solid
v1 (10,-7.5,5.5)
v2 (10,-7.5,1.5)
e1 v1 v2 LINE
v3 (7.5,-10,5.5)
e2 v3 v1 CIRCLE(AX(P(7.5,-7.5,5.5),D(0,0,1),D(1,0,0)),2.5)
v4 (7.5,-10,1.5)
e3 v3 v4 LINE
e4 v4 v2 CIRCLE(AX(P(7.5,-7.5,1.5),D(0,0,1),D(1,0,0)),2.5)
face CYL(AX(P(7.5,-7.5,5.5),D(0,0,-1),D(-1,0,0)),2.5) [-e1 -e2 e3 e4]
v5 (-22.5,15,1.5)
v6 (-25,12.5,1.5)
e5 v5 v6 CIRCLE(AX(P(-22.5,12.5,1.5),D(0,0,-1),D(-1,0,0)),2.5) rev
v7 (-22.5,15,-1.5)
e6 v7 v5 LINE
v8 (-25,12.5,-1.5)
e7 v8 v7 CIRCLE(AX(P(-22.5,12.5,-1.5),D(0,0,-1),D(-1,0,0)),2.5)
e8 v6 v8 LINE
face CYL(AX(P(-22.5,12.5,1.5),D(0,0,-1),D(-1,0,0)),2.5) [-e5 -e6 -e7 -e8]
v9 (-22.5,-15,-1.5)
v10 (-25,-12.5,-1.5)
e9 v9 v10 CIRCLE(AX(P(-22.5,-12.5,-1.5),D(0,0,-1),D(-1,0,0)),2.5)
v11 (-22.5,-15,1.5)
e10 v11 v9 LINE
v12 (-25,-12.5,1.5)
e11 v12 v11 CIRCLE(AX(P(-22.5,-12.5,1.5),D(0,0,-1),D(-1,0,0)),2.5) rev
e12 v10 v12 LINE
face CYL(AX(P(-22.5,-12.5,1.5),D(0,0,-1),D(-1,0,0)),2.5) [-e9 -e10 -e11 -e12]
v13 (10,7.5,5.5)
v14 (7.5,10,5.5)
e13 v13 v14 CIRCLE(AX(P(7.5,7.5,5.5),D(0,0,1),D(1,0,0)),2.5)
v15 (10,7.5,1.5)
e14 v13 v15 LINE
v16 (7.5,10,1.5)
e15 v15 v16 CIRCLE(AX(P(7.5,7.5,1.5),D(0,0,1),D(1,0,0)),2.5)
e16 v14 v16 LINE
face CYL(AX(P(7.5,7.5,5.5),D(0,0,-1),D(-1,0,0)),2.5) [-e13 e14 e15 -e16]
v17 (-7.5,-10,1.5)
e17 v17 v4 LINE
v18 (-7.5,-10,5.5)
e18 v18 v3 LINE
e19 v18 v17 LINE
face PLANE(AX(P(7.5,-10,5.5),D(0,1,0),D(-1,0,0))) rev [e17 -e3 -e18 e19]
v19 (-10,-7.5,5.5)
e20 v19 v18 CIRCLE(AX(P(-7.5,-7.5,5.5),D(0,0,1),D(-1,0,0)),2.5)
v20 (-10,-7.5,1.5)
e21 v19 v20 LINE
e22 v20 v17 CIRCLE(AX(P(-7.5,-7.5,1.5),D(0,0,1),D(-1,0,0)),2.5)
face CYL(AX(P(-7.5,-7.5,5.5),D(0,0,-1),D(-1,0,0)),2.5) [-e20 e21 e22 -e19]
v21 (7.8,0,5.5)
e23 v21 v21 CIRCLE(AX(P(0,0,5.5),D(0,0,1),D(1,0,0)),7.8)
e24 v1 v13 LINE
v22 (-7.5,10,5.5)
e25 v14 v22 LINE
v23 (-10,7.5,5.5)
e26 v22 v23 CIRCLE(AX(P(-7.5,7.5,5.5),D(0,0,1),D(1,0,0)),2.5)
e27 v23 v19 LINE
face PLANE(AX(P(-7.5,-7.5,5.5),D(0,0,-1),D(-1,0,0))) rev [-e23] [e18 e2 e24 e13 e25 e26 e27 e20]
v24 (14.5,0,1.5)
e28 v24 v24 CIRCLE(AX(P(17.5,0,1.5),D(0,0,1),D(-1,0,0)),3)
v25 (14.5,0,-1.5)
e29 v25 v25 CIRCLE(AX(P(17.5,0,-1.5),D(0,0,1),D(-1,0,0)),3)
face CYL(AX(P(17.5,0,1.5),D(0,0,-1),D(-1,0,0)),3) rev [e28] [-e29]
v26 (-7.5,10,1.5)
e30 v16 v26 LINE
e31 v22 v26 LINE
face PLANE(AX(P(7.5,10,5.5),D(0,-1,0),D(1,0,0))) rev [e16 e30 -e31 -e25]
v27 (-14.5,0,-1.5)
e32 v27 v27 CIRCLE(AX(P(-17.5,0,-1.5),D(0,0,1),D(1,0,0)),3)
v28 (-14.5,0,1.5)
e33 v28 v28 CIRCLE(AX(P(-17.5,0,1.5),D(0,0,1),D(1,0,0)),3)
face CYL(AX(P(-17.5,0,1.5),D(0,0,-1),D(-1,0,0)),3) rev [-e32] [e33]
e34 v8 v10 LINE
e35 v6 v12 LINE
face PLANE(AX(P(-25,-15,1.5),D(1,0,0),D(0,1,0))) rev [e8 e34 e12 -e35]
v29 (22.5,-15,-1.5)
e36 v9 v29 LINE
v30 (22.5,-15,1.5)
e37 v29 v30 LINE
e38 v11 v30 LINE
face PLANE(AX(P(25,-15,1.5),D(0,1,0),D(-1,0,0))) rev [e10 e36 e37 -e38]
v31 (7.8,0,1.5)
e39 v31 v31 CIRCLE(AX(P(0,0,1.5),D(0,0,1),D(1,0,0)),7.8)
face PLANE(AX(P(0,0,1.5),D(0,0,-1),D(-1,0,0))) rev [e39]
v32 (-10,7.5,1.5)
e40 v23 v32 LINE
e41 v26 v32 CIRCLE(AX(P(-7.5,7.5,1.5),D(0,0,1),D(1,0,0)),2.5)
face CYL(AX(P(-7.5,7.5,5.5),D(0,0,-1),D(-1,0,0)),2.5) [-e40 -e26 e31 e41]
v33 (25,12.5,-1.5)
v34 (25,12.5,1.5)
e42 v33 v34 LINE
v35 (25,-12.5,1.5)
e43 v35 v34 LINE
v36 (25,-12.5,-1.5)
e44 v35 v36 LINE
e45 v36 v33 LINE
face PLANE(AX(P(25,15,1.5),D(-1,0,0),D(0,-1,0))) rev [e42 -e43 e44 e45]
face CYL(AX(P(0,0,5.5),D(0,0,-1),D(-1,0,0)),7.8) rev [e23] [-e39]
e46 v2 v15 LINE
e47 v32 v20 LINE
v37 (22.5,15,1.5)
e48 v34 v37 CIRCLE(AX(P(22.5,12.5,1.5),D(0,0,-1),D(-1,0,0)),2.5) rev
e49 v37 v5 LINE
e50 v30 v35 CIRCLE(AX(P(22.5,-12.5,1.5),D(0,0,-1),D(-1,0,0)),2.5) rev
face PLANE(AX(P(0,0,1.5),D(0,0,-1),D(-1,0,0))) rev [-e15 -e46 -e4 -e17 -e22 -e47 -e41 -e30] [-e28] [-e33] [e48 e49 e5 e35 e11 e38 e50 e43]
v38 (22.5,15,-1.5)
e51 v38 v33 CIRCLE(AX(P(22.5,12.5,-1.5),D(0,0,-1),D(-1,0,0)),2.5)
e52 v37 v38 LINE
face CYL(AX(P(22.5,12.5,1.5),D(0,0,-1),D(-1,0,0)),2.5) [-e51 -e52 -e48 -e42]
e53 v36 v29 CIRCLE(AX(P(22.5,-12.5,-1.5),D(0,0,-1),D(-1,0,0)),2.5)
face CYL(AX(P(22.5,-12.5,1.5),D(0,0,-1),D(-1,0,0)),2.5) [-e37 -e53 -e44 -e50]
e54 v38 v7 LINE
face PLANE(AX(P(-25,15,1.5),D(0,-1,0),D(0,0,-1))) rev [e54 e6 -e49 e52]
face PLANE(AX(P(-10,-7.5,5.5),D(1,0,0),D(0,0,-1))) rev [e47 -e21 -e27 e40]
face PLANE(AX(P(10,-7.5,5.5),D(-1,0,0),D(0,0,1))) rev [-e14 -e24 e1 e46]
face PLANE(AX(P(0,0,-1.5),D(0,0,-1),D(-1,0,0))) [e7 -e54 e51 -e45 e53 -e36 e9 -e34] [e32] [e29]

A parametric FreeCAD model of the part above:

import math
import FreeCAD as App
import Part
import Sketcher


def edges_at(feature, points):
    """Names of the edges that pass closest to the given points."""
    edges = feature.Shape.Edges
    near = lambda p: min(range(len(edges)), key=lambda i: edges[i].distToShape(Part.Vertex(*p))[0])
    return sorted({f"Edge{near(p) + 1}" for p in points})

doc = App.newDocument("Part")
body = doc.addObject("PartDesign::Body", "Body")

# Sketch on XY plane
sketch1 = body.newObject("Sketcher::SketchObject", "Sketch")
sketch1.AttachmentSupport = (doc.getObject("XY_Plane"), [""])
sketch1.MapMode = "FlatFace"
sketch1.addGeometry(Part.LineSegment(App.Vector(-25, 15, 0), App.Vector(-25, -15, 0)), False)
sketch1.addGeometry(Part.LineSegment(App.Vector(-25, -15, 0), App.Vector(25, -15, 0)), False)
sketch1.addGeometry(Part.LineSegment(App.Vector(25, -15, 0), App.Vector(25, 15, 0)), False)
sketch1.addGeometry(Part.LineSegment(App.Vector(25, 15, 0), App.Vector(-25, 15, 0)), False)
sketch1.addGeometry(Part.Circle(App.Vector(-17.5, 0, 0), App.Vector(0, 0, 1), 3), False)
sketch1.addGeometry(Part.Circle(App.Vector(17.5, 0, 0), App.Vector(0, 0, 1), 3), False)
sketch1.addConstraint(Sketcher.Constraint("Coincident", 0, 2, 1, 1))
sketch1.addConstraint(Sketcher.Constraint("Coincident", 1, 2, 2, 1))
sketch1.addConstraint(Sketcher.Constraint("Coincident", 2, 2, 3, 1))
sketch1.addConstraint(Sketcher.Constraint("Coincident", 3, 2, 0, 1))
sketch1.addConstraint(Sketcher.Constraint("Vertical", 0))
sketch1.addConstraint(Sketcher.Constraint("Horizontal", 1))
sketch1.addConstraint(Sketcher.Constraint("Vertical", 2))
sketch1.addConstraint(Sketcher.Constraint("Horizontal", 3))
sketch1.addConstraint(Sketcher.Constraint("Equal", 4, 5))
sketch1.addConstraint(Sketcher.Constraint("Symmetric", 4, 3, 5, 3, -1, 1))
sketch1.addConstraint(Sketcher.Constraint("Symmetric", 0, 2, 2, 2, -1, 1))
sketch1.addConstraint(Sketcher.Constraint("PointOnObject", 4, 3, -1))
sketch1.addConstraint(Sketcher.Constraint("Diameter", 4, 6.0))
sketch1.addConstraint(Sketcher.Constraint("DistanceX", 1, 1, 1, 2, 50.0))
sketch1.addConstraint(Sketcher.Constraint("DistanceY", 0, 2, 0, 1, 30.0))
sketch1.addConstraint(Sketcher.Constraint("DistanceX", 4, 3, 5, 3, 35.0))
pad1 = body.newObject("PartDesign::Pad", "Pad")
pad1.Profile = sketch1
pad1.Length = 3
pad1.Midplane = True
doc.recompute()

fillet = body.newObject("PartDesign::Fillet", "Fillet")
fillet.Base = (pad1, edges_at(pad1, [
    (-25, 15, 0),
    (25, 15, 0),
    (25, -15, 0),
    (-25, -15, 0),
]))
fillet.Radius = 2.5

# Sketch on XY plane
sketch2 = body.newObject("Sketcher::SketchObject", "Sketch001")
sketch2.AttachmentSupport = (doc.getObject("XY_Plane"), [""])
sketch2.MapMode = "FlatFace"
sketch2.AttachmentOffset = App.Placement(App.Vector(0, 0, 1.5), App.Rotation())
sketch2.addGeometry(Part.LineSegment(App.Vector(-7.5, -10, 0), App.Vector(7.5, -10, 0)), False)
sketch2.addGeometry(Part.ArcOfCircle(Part.Circle(App.Vector(7.5, -7.5, 0), App.Vector(0, 0, 1), 2.5), math.radians(-90), math.radians(0)), False)
sketch2.addGeometry(Part.LineSegment(App.Vector(10, -7.5, 0), App.Vector(10, 7.5, 0)), False)
sketch2.addGeometry(Part.ArcOfCircle(Part.Circle(App.Vector(7.5, 7.5, 0), App.Vector(0, 0, 1), 2.5), math.radians(0), math.radians(90)), False)
sketch2.addGeometry(Part.LineSegment(App.Vector(7.5, 10, 0), App.Vector(-7.5, 10, 0)), False)
sketch2.addGeometry(Part.ArcOfCircle(Part.Circle(App.Vector(-7.5, 7.5, 0), App.Vector(0, 0, 1), 2.5), math.radians(90), math.radians(180)), False)
sketch2.addGeometry(Part.LineSegment(App.Vector(-10, 7.5, 0), App.Vector(-10, -7.5, 0)), False)
sketch2.addGeometry(Part.ArcOfCircle(Part.Circle(App.Vector(-7.5, -7.5, 0), App.Vector(0, 0, 1), 2.5), math.radians(180), math.radians(270)), False)
sketch2.addGeometry(Part.Circle(App.Vector(0, 0, 0), App.Vector(0, 0, 1), 7.8), False)
sketch2.addConstraint(Sketcher.Constraint("Tangent", 0, 2, 1, 1))
sketch2.addConstraint(Sketcher.Constraint("Tangent", 1, 2, 2, 1))
sketch2.addConstraint(Sketcher.Constraint("Tangent", 2, 2, 3, 1))
sketch2.addConstraint(Sketcher.Constraint("Tangent", 3, 2, 4, 1))
sketch2.addConstraint(Sketcher.Constraint("Tangent", 4, 2, 5, 1))
sketch2.addConstraint(Sketcher.Constraint("Tangent", 5, 2, 6, 1))
sketch2.addConstraint(Sketcher.Constraint("Tangent", 6, 2, 7, 1))
sketch2.addConstraint(Sketcher.Constraint("Tangent", 7, 2, 0, 1))
sketch2.addConstraint(Sketcher.Constraint("Horizontal", 0))
sketch2.addConstraint(Sketcher.Constraint("Vertical", 2))
sketch2.addConstraint(Sketcher.Constraint("Horizontal", 4))
sketch2.addConstraint(Sketcher.Constraint("Vertical", 6))
sketch2.addConstraint(Sketcher.Constraint("Coincident", 8, 3, -1, 1))
sketch2.addConstraint(Sketcher.Constraint("Equal", 1, 3))
sketch2.addConstraint(Sketcher.Constraint("Equal", 3, 5))
sketch2.addConstraint(Sketcher.Constraint("Equal", 5, 7))
sketch2.addConstraint(Sketcher.Constraint("Symmetric", 1, 3, 5, 3, -1, 1))
sketch2.addConstraint(Sketcher.Constraint("Equal", 4, 2))
sketch2.addConstraint(Sketcher.Constraint("Diameter", 8, 15.6))
sketch2.addConstraint(Sketcher.Constraint("Radius", 1, 2.5))
sketch2.addConstraint(Sketcher.Constraint("DistanceX", 0, 1, 0, 2, 15.0))
pad2 = body.newObject("PartDesign::Pad", "Pad001")
pad2.Profile = sketch2
pad2.Length = 4

doc.recompute()
